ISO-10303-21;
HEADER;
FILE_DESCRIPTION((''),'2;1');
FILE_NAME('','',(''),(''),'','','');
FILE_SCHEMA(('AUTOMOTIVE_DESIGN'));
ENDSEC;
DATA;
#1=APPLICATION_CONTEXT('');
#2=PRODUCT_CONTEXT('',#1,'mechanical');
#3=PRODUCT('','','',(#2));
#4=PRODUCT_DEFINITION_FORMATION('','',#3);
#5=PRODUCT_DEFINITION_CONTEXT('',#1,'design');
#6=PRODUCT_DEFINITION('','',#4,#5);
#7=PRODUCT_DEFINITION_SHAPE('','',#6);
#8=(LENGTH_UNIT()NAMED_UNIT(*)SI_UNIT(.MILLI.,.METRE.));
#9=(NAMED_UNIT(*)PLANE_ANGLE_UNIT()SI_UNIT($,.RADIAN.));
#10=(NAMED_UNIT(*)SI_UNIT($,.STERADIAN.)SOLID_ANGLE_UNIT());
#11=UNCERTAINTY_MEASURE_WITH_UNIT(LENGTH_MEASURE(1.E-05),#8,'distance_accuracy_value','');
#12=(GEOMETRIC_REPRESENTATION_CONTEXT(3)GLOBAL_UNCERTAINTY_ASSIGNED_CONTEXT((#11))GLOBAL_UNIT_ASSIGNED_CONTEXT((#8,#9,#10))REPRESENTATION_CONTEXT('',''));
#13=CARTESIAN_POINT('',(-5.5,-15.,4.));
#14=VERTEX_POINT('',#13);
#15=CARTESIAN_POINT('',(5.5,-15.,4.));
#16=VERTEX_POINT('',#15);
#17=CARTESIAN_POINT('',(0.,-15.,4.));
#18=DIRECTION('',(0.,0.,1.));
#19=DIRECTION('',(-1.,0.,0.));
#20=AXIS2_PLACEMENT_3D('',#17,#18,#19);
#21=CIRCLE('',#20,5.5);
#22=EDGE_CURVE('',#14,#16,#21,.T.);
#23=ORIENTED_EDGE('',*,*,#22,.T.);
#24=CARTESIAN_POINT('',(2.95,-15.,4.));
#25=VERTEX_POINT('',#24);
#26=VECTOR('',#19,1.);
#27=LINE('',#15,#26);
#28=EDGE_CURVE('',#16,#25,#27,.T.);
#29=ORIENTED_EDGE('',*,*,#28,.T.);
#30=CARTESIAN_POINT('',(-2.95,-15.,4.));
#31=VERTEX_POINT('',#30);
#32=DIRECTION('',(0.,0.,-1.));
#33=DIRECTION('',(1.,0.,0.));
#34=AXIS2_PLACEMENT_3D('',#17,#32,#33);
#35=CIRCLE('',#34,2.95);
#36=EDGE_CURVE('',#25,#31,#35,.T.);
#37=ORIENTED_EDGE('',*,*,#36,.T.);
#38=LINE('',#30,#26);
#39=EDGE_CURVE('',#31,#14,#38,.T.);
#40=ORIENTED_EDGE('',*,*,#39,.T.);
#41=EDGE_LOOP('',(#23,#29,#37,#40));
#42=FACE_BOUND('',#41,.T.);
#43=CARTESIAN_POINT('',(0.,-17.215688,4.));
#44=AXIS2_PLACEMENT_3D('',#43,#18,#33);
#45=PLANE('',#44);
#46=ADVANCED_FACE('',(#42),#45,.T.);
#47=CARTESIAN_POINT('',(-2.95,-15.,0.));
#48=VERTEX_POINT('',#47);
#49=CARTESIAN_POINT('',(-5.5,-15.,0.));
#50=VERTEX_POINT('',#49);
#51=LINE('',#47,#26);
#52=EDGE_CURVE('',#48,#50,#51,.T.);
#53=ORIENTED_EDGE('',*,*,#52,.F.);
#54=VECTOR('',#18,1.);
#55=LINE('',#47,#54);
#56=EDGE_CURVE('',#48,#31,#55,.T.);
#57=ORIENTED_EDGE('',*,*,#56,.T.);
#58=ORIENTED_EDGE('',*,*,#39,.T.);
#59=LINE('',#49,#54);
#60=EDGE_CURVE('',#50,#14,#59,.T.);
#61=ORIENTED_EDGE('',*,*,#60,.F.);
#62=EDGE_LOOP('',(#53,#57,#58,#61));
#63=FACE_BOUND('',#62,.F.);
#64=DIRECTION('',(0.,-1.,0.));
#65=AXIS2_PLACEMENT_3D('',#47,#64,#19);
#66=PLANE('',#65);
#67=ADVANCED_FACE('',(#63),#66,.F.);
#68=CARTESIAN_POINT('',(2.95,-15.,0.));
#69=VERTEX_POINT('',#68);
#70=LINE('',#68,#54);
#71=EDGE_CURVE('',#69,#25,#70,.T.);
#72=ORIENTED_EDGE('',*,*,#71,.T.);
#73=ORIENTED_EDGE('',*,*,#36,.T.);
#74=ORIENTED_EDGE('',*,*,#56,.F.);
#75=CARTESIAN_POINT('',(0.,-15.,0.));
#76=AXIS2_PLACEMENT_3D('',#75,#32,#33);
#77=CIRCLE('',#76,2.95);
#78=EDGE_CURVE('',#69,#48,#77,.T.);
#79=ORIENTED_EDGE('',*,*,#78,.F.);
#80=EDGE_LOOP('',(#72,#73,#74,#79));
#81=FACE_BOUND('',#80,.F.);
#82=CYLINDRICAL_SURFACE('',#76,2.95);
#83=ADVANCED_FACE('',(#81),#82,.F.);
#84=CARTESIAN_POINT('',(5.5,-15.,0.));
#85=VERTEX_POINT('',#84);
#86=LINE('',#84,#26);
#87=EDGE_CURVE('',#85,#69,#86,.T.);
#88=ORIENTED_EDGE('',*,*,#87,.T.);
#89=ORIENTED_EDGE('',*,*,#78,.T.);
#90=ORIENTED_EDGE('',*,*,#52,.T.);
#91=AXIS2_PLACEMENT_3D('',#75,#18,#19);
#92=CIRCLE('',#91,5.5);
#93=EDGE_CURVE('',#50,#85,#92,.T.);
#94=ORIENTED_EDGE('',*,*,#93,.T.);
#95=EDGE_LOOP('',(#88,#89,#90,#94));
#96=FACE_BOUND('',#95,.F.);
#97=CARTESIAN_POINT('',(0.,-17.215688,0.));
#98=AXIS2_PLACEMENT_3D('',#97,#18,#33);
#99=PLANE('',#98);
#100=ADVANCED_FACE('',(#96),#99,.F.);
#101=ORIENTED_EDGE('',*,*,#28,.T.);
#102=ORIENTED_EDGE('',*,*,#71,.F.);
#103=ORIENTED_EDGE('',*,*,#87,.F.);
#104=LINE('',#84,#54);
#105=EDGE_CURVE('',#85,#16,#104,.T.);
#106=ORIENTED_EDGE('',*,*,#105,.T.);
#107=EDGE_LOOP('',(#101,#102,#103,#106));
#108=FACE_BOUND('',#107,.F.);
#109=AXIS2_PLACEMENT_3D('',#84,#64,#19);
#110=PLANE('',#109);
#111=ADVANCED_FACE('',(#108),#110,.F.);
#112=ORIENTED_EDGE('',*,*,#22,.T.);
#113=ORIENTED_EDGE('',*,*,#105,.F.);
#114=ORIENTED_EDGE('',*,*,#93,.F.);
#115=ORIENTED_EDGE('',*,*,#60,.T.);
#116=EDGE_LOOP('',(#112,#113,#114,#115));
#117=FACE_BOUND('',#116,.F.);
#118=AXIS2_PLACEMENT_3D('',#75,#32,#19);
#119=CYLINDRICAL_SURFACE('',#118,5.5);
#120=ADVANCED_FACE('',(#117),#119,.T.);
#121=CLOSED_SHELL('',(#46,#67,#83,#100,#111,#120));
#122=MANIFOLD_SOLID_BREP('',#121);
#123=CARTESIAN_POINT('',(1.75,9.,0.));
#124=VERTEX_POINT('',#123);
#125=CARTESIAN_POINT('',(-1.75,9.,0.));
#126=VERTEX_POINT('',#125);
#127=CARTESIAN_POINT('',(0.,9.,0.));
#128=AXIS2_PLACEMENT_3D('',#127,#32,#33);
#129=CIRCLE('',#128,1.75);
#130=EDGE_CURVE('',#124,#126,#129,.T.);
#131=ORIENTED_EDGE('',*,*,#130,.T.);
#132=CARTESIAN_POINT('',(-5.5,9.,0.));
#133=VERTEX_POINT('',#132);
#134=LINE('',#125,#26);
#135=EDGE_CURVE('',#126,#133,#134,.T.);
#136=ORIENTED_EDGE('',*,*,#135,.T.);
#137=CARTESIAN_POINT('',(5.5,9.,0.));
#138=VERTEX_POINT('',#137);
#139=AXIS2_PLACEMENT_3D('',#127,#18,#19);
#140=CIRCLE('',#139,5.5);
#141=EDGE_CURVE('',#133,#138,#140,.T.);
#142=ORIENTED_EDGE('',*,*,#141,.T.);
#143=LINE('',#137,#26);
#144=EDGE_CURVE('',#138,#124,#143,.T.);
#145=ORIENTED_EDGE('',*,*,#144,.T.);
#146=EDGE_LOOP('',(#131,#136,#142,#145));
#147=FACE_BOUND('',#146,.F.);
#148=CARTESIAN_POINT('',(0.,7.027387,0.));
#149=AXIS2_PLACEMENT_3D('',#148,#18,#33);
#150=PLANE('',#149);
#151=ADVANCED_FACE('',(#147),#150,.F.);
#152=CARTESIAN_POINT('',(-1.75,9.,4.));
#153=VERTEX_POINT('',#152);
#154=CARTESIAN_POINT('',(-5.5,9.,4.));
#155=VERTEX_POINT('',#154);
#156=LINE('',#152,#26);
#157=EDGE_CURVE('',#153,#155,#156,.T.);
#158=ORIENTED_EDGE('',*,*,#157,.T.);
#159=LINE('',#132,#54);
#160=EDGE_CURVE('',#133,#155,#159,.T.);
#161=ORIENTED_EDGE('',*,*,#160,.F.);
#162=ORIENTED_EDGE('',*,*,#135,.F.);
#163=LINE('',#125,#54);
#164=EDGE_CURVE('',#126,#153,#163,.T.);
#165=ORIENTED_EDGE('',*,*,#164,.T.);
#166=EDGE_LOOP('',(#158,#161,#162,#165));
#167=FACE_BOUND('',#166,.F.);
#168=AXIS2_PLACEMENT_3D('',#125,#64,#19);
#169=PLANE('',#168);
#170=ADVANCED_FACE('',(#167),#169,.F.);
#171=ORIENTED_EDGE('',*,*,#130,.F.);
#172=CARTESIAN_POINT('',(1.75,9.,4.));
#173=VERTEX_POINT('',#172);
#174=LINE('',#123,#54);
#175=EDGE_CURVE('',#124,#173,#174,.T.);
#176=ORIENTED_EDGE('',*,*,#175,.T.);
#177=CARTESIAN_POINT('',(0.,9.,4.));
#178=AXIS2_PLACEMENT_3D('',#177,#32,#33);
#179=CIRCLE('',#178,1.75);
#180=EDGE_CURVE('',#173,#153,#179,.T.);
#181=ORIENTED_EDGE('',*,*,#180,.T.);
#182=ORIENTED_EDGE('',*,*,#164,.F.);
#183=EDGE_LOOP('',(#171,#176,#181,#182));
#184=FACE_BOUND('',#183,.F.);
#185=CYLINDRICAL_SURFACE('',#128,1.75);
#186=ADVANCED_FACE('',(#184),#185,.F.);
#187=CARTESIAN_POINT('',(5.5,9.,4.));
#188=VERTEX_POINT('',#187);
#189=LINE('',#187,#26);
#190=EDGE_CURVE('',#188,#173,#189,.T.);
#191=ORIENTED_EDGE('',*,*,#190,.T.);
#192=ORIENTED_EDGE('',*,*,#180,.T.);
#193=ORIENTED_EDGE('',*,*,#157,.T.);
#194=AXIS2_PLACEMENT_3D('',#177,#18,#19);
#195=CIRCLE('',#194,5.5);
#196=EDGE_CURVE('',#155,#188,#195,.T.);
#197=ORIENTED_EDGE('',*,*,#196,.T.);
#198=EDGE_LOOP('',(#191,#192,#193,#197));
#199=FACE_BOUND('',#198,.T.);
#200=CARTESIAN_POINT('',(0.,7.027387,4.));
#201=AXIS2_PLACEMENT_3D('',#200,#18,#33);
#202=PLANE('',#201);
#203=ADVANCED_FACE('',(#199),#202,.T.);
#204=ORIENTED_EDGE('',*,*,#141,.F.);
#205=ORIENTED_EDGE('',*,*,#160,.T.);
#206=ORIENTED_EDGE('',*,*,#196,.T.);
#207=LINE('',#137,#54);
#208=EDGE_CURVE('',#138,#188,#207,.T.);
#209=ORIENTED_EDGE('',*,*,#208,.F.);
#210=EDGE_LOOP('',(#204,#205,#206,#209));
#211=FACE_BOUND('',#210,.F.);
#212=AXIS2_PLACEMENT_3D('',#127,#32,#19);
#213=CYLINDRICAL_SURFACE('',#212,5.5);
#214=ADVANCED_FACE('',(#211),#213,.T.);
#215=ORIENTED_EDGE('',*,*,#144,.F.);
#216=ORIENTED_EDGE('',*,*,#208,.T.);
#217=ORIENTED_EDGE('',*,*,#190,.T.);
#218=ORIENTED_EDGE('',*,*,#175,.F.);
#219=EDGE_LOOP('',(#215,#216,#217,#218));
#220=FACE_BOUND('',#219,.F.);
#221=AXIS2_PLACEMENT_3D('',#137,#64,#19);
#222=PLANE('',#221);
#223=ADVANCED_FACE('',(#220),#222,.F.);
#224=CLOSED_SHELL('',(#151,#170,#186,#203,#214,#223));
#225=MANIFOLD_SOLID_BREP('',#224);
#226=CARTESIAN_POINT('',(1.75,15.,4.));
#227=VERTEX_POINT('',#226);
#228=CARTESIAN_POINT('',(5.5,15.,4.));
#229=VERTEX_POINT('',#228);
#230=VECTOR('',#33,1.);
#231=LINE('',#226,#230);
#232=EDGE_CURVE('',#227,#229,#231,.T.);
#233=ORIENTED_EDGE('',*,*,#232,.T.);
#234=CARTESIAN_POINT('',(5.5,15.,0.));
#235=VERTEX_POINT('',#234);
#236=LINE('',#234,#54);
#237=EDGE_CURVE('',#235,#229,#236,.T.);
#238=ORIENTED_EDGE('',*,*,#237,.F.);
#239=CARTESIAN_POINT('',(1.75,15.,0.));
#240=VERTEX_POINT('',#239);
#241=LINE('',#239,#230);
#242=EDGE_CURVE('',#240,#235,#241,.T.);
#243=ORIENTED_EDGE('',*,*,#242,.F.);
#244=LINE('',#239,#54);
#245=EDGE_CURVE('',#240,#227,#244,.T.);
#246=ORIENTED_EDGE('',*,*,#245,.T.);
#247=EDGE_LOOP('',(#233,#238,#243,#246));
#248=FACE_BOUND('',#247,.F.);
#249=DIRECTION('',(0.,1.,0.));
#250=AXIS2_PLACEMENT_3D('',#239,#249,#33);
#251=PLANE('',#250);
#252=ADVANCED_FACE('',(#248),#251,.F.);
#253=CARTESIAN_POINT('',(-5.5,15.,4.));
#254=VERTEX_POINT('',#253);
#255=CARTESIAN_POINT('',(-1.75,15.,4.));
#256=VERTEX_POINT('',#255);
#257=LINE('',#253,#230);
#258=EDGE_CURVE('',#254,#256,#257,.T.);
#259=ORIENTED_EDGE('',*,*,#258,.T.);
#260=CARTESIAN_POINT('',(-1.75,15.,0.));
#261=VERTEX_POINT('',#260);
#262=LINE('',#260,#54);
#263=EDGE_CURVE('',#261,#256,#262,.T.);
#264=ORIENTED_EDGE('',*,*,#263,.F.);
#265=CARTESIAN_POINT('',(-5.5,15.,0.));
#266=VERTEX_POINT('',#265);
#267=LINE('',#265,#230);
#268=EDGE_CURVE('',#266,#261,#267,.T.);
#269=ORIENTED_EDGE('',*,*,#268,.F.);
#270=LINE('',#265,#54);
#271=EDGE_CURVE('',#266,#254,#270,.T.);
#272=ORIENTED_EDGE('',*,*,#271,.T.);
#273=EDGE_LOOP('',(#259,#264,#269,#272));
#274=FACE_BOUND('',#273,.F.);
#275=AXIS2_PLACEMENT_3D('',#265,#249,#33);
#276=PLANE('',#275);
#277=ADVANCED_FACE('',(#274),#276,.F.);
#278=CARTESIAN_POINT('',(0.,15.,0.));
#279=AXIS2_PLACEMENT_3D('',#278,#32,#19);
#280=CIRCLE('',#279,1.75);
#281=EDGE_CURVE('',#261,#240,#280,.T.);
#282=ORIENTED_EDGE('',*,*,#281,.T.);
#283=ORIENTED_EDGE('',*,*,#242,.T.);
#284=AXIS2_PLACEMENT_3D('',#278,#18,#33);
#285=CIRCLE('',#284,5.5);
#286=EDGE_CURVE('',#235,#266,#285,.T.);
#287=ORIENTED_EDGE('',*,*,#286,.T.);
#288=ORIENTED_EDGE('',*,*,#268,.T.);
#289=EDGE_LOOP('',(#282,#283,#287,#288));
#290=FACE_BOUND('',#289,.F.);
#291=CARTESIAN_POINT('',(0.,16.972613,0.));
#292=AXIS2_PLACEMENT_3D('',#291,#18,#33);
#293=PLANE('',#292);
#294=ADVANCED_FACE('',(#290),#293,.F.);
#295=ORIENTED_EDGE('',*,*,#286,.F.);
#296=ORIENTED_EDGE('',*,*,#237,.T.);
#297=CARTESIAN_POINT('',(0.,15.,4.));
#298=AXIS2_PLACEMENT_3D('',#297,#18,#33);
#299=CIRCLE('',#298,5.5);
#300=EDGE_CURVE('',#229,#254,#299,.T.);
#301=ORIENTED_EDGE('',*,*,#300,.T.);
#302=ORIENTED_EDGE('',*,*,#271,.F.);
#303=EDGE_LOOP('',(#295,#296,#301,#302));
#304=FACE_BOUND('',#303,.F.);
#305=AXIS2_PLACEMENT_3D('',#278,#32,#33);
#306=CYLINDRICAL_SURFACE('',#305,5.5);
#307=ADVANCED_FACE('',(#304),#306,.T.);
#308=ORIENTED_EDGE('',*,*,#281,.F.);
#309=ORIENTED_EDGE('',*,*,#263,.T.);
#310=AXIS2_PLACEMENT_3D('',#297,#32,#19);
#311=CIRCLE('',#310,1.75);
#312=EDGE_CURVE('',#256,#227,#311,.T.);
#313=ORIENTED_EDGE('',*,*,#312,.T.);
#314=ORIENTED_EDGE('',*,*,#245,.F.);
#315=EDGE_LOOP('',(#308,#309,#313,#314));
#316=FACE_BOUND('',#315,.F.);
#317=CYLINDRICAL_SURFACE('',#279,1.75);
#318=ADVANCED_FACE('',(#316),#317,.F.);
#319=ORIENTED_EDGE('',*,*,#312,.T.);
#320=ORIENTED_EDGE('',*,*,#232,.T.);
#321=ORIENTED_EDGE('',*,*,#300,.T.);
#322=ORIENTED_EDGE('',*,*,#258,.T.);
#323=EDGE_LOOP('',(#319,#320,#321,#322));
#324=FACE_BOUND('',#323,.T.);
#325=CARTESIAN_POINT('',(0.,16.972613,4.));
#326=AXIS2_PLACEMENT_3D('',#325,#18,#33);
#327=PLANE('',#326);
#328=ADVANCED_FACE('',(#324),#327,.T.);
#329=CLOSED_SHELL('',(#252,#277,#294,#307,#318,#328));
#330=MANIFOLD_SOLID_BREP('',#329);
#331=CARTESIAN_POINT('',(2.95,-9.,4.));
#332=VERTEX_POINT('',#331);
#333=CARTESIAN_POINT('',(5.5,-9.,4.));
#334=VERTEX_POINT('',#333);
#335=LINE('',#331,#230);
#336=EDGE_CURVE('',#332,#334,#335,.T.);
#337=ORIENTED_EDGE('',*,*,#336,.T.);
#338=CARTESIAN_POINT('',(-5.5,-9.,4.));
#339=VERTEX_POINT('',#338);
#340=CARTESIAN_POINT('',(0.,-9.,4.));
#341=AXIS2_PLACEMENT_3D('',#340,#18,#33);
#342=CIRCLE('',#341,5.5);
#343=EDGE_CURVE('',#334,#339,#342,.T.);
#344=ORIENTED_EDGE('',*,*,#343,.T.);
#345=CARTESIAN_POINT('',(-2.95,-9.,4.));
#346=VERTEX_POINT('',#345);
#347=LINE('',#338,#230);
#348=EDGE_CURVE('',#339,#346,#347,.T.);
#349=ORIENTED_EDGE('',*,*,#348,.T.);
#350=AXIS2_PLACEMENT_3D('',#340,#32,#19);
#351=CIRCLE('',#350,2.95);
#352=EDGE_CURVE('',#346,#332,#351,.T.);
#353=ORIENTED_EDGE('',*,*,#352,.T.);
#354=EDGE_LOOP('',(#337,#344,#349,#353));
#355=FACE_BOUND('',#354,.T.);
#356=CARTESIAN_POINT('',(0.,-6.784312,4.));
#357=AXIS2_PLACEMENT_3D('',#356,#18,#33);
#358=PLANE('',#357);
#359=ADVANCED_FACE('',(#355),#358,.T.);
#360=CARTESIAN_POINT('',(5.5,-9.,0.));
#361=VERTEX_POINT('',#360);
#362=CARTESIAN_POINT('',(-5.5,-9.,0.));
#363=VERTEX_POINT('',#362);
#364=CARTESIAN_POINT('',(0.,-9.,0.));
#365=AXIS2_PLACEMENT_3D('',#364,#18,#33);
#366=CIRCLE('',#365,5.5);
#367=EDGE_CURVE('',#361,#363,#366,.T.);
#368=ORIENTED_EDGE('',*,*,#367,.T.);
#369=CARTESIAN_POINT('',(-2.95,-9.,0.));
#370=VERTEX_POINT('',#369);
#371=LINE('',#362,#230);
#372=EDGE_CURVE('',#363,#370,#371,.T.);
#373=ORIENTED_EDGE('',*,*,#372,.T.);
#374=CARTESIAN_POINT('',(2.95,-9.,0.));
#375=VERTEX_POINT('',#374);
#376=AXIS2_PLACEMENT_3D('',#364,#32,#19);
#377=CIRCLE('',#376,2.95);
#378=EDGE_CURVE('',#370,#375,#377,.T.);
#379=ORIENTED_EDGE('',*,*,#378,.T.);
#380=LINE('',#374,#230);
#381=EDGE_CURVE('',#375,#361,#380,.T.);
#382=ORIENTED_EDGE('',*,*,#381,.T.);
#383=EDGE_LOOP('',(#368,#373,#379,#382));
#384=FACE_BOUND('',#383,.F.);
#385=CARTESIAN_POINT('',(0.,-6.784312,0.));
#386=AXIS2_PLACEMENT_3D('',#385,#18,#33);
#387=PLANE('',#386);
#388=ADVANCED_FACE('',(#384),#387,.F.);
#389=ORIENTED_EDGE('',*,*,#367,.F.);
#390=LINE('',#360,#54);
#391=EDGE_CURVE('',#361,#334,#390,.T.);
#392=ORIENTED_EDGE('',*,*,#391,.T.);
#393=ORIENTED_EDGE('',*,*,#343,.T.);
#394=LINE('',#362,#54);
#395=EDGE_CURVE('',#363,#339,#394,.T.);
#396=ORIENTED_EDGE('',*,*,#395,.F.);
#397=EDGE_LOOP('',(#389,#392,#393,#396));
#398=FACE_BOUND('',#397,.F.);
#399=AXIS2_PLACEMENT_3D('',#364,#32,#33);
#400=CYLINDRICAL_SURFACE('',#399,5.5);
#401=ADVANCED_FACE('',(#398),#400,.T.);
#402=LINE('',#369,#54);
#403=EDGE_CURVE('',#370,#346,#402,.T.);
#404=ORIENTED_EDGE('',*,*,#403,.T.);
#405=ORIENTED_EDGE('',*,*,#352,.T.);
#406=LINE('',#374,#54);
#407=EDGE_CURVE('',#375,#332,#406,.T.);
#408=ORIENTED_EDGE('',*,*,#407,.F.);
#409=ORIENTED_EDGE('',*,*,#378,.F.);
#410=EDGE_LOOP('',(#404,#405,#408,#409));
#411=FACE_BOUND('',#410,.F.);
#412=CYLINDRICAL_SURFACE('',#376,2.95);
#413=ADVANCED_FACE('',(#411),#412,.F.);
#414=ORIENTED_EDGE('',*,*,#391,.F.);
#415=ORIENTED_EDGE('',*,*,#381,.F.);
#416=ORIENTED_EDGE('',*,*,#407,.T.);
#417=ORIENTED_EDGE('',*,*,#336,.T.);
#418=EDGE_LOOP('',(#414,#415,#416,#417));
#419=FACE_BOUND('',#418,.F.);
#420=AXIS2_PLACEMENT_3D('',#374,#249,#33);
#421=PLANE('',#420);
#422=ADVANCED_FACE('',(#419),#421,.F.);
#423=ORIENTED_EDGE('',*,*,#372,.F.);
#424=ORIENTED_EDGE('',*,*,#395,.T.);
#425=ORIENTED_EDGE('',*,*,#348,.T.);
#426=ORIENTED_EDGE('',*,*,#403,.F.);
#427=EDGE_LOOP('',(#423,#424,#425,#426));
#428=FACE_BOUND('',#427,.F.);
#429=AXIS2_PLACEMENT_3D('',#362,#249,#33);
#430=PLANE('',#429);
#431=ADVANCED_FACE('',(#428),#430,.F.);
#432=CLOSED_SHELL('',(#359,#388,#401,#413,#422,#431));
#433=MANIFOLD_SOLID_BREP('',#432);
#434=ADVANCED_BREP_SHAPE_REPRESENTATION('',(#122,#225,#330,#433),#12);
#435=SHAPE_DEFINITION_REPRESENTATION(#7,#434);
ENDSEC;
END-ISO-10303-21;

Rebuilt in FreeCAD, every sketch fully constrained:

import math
import FreeCAD as App
import Part
import Sketcher

doc = App.newDocument("Part")
body = doc.addObject("PartDesign::Body", "Body")
body.AllowCompound = True

# Sketch on XY plane
sketch1 = body.newObject("Sketcher::SketchObject", "Sketch")
sketch1.AttachmentSupport = (doc.getObject("XY_Plane"), [""])
sketch1.MapMode = "FlatFace"
sketch1.addGeometry(Part.LineSegment(App.Vector(1.75, 15, 0), App.Vector(5.5, 15, 0)), False)
sketch1.addGeometry(Part.ArcOfCircle(Part.Circle(App.Vector(0, 15, 0), App.Vector(0, 0, 1), 5.5), math.radians(0), math.radians(180)), False)
sketch1.addGeometry(Part.LineSegment(App.Vector(-5.5, 15, 0), App.Vector(-1.75, 15, 0)), False)
sketch1.addGeometry(Part.ArcOfCircle(Part.Circle(App.Vector(0, 15, 0), App.Vector(0, 0, 1), 1.75), math.radians(0), math.radians(180)), False)
sketch1.addGeometry(Part.LineSegment(App.Vector(-2.95, -15, 0), App.Vector(-5.5, -15, 0)), False)
sketch1.addGeometry(Part.ArcOfCircle(Part.Circle(App.Vector(0, -15, 0), App.Vector(0, 0, 1), 5.5), math.radians(180), math.radians(360)), False)
sketch1.addGeometry(Part.LineSegment(App.Vector(5.5, -15, 0), App.Vector(2.95, -15, 0)), False)
sketch1.addGeometry(Part.ArcOfCircle(Part.Circle(App.Vector(0, -15, 0), App.Vector(0, 0, 1), 2.95), math.radians(180), math.radians(360)), False)
sketch1.addGeometry(Part.LineSegment(App.Vector(5.5, 9, 0), App.Vector(1.75, 9, 0)), False)
sketch1.addGeometry(Part.ArcOfCircle(Part.Circle(App.Vector(0, 9, 0), App.Vector(0, 0, 1), 1.75), math.radians(180), math.radians(360)), False)
sketch1.addGeometry(Part.LineSegment(App.Vector(-1.75, 9, 0), App.Vector(-5.5, 9, 0)), False)
sketch1.addGeometry(Part.ArcOfCircle(Part.Circle(App.Vector(0, 9, 0), App.Vector(0, 0, 1), 5.5), math.radians(180), math.radians(360)), False)
sketch1.addGeometry(Part.ArcOfCircle(Part.Circle(App.Vector(0, -9, 0), App.Vector(0, 0, 1), 2.95), math.radians(0), math.radians(180)), False)
sketch1.addGeometry(Part.LineSegment(App.Vector(2.95, -9, 0), App.Vector(5.5, -9, 0)), False)
sketch1.addGeometry(Part.ArcOfCircle(Part.Circle(App.Vector(0, -9, 0), App.Vector(0, 0, 1), 5.5), math.radians(0), math.radians(180)), False)
sketch1.addGeometry(Part.LineSegment(App.Vector(-5.5, -9, 0), App.Vector(-2.95, -9, 0)), False)
sketch1.addConstraint(Sketcher.Constraint("Coincident", 0, 2, 1, 1))
sketch1.addConstraint(Sketcher.Constraint("Coincident", 1, 2, 2, 1))
sketch1.addConstraint(Sketcher.Constraint("Coincident", 2, 2, 3, 2))
sketch1.addConstraint(Sketcher.Constraint("Coincident", 3, 1, 0, 1))
sketch1.addConstraint(Sketcher.Constraint("Coincident", 4, 2, 5, 1))
sketch1.addConstraint(Sketcher.Constraint("Coincident", 5, 2, 6, 1))
sketch1.addConstraint(Sketcher.Constraint("Coincident", 6, 2, 7, 2))
sketch1.addConstraint(Sketcher.Constraint("Coincident", 7, 1, 4, 1))
sketch1.addConstraint(Sketcher.Constraint("Coincident", 8, 2, 9, 2))
sketch1.addConstraint(Sketcher.Constraint("Coincident", 9, 1, 10, 1))
sketch1.addConstraint(Sketcher.Constraint("Coincident", 10, 2, 11, 1))
sketch1.addConstraint(Sketcher.Constraint("Coincident", 11, 2, 8, 1))
sketch1.addConstraint(Sketcher.Constraint("Coincident", 12, 1, 13, 1))
sketch1.addConstraint(Sketcher.Constraint("Coincident", 13, 2, 14, 1))
sketch1.addConstraint(Sketcher.Constraint("Coincident", 14, 2, 15, 1))
sketch1.addConstraint(Sketcher.Constraint("Coincident", 15, 2, 12, 2))
sketch1.addConstraint(Sketcher.Constraint("Horizontal", 0))
sketch1.addConstraint(Sketcher.Constraint("Horizontal", 2))
sketch1.addConstraint(Sketcher.Constraint("Horizontal", 4))
sketch1.addConstraint(Sketcher.Constraint("Horizontal", 6))
sketch1.addConstraint(Sketcher.Constraint("Horizontal", 8))
sketch1.addConstraint(Sketcher.Constraint("Horizontal", 10))
sketch1.addConstraint(Sketcher.Constraint("Horizontal", 13))
sketch1.addConstraint(Sketcher.Constraint("Horizontal", 15))
sketch1.addConstraint(Sketcher.Constraint("Coincident", 3, 3, 1, 3))
sketch1.addConstraint(Sketcher.Constraint("Coincident", 7, 3, 5, 3))
sketch1.addConstraint(Sketcher.Constraint("Coincident", 11, 3, 9, 3))
sketch1.addConstraint(Sketcher.Constraint("Coincident", 14, 3, 12, 3))
sketch1.addConstraint(Sketcher.Constraint("Equal", 1, 5))
sketch1.addConstraint(Sketcher.Constraint("Equal", 3, 9))
sketch1.addConstraint(Sketcher.Constraint("Equal", 5, 11))
sketch1.addConstraint(Sketcher.Constraint("Equal", 7, 12))
sketch1.addConstraint(Sketcher.Constraint("Equal", 11, 14))
sketch1.addConstraint(Sketcher.Constraint("Symmetric", 1, 3, 5, 3, -1, 1))
sketch1.addConstraint(Sketcher.Constraint("Symmetric", 9, 3, 12, 3, -1, 1))
sketch1.addConstraint(Sketcher.Constraint("Symmetric", 0, 2, 1, 2, -2))
sketch1.addConstraint(Sketcher.Constraint("Symmetric", 8, 2, 9, 1, -2))
sketch1.addConstraint(Sketcher.Constraint("Horizontal", 3, 3, 0, 2))
sketch1.addConstraint(Sketcher.Constraint("Horizontal", 7, 3, 4, 2))
sketch1.addConstraint(Sketcher.Constraint("Horizontal", 4, 2, 5, 2))
sketch1.addConstraint(Sketcher.Constraint("Horizontal", 11, 3, 8, 2))
sketch1.addConstraint(Sketcher.Constraint("Horizontal", 14, 3, 12, 1))
sketch1.addConstraint(Sketcher.Constraint("Horizontal", 13, 2, 14, 2))
sketch1.addConstraint(Sketcher.Constraint("Radius", 1, 5.5))
sketch1.addConstraint(Sketcher.Constraint("Radius", 3, 1.75))
sketch1.addConstraint(Sketcher.Constraint("Radius", 7, 2.95))
sketch1.addConstraint(Sketcher.Constraint("DistanceY", -1, 1, 1, 3, 15.0))
sketch1.addConstraint(Sketcher.Constraint("DistanceY", -1, 1, 9, 3, 9.0))
pad1 = body.newObject("PartDesign::Pad", "Pad")
pad1.Profile = sketch1
pad1.Length = 4

doc.recompute()
